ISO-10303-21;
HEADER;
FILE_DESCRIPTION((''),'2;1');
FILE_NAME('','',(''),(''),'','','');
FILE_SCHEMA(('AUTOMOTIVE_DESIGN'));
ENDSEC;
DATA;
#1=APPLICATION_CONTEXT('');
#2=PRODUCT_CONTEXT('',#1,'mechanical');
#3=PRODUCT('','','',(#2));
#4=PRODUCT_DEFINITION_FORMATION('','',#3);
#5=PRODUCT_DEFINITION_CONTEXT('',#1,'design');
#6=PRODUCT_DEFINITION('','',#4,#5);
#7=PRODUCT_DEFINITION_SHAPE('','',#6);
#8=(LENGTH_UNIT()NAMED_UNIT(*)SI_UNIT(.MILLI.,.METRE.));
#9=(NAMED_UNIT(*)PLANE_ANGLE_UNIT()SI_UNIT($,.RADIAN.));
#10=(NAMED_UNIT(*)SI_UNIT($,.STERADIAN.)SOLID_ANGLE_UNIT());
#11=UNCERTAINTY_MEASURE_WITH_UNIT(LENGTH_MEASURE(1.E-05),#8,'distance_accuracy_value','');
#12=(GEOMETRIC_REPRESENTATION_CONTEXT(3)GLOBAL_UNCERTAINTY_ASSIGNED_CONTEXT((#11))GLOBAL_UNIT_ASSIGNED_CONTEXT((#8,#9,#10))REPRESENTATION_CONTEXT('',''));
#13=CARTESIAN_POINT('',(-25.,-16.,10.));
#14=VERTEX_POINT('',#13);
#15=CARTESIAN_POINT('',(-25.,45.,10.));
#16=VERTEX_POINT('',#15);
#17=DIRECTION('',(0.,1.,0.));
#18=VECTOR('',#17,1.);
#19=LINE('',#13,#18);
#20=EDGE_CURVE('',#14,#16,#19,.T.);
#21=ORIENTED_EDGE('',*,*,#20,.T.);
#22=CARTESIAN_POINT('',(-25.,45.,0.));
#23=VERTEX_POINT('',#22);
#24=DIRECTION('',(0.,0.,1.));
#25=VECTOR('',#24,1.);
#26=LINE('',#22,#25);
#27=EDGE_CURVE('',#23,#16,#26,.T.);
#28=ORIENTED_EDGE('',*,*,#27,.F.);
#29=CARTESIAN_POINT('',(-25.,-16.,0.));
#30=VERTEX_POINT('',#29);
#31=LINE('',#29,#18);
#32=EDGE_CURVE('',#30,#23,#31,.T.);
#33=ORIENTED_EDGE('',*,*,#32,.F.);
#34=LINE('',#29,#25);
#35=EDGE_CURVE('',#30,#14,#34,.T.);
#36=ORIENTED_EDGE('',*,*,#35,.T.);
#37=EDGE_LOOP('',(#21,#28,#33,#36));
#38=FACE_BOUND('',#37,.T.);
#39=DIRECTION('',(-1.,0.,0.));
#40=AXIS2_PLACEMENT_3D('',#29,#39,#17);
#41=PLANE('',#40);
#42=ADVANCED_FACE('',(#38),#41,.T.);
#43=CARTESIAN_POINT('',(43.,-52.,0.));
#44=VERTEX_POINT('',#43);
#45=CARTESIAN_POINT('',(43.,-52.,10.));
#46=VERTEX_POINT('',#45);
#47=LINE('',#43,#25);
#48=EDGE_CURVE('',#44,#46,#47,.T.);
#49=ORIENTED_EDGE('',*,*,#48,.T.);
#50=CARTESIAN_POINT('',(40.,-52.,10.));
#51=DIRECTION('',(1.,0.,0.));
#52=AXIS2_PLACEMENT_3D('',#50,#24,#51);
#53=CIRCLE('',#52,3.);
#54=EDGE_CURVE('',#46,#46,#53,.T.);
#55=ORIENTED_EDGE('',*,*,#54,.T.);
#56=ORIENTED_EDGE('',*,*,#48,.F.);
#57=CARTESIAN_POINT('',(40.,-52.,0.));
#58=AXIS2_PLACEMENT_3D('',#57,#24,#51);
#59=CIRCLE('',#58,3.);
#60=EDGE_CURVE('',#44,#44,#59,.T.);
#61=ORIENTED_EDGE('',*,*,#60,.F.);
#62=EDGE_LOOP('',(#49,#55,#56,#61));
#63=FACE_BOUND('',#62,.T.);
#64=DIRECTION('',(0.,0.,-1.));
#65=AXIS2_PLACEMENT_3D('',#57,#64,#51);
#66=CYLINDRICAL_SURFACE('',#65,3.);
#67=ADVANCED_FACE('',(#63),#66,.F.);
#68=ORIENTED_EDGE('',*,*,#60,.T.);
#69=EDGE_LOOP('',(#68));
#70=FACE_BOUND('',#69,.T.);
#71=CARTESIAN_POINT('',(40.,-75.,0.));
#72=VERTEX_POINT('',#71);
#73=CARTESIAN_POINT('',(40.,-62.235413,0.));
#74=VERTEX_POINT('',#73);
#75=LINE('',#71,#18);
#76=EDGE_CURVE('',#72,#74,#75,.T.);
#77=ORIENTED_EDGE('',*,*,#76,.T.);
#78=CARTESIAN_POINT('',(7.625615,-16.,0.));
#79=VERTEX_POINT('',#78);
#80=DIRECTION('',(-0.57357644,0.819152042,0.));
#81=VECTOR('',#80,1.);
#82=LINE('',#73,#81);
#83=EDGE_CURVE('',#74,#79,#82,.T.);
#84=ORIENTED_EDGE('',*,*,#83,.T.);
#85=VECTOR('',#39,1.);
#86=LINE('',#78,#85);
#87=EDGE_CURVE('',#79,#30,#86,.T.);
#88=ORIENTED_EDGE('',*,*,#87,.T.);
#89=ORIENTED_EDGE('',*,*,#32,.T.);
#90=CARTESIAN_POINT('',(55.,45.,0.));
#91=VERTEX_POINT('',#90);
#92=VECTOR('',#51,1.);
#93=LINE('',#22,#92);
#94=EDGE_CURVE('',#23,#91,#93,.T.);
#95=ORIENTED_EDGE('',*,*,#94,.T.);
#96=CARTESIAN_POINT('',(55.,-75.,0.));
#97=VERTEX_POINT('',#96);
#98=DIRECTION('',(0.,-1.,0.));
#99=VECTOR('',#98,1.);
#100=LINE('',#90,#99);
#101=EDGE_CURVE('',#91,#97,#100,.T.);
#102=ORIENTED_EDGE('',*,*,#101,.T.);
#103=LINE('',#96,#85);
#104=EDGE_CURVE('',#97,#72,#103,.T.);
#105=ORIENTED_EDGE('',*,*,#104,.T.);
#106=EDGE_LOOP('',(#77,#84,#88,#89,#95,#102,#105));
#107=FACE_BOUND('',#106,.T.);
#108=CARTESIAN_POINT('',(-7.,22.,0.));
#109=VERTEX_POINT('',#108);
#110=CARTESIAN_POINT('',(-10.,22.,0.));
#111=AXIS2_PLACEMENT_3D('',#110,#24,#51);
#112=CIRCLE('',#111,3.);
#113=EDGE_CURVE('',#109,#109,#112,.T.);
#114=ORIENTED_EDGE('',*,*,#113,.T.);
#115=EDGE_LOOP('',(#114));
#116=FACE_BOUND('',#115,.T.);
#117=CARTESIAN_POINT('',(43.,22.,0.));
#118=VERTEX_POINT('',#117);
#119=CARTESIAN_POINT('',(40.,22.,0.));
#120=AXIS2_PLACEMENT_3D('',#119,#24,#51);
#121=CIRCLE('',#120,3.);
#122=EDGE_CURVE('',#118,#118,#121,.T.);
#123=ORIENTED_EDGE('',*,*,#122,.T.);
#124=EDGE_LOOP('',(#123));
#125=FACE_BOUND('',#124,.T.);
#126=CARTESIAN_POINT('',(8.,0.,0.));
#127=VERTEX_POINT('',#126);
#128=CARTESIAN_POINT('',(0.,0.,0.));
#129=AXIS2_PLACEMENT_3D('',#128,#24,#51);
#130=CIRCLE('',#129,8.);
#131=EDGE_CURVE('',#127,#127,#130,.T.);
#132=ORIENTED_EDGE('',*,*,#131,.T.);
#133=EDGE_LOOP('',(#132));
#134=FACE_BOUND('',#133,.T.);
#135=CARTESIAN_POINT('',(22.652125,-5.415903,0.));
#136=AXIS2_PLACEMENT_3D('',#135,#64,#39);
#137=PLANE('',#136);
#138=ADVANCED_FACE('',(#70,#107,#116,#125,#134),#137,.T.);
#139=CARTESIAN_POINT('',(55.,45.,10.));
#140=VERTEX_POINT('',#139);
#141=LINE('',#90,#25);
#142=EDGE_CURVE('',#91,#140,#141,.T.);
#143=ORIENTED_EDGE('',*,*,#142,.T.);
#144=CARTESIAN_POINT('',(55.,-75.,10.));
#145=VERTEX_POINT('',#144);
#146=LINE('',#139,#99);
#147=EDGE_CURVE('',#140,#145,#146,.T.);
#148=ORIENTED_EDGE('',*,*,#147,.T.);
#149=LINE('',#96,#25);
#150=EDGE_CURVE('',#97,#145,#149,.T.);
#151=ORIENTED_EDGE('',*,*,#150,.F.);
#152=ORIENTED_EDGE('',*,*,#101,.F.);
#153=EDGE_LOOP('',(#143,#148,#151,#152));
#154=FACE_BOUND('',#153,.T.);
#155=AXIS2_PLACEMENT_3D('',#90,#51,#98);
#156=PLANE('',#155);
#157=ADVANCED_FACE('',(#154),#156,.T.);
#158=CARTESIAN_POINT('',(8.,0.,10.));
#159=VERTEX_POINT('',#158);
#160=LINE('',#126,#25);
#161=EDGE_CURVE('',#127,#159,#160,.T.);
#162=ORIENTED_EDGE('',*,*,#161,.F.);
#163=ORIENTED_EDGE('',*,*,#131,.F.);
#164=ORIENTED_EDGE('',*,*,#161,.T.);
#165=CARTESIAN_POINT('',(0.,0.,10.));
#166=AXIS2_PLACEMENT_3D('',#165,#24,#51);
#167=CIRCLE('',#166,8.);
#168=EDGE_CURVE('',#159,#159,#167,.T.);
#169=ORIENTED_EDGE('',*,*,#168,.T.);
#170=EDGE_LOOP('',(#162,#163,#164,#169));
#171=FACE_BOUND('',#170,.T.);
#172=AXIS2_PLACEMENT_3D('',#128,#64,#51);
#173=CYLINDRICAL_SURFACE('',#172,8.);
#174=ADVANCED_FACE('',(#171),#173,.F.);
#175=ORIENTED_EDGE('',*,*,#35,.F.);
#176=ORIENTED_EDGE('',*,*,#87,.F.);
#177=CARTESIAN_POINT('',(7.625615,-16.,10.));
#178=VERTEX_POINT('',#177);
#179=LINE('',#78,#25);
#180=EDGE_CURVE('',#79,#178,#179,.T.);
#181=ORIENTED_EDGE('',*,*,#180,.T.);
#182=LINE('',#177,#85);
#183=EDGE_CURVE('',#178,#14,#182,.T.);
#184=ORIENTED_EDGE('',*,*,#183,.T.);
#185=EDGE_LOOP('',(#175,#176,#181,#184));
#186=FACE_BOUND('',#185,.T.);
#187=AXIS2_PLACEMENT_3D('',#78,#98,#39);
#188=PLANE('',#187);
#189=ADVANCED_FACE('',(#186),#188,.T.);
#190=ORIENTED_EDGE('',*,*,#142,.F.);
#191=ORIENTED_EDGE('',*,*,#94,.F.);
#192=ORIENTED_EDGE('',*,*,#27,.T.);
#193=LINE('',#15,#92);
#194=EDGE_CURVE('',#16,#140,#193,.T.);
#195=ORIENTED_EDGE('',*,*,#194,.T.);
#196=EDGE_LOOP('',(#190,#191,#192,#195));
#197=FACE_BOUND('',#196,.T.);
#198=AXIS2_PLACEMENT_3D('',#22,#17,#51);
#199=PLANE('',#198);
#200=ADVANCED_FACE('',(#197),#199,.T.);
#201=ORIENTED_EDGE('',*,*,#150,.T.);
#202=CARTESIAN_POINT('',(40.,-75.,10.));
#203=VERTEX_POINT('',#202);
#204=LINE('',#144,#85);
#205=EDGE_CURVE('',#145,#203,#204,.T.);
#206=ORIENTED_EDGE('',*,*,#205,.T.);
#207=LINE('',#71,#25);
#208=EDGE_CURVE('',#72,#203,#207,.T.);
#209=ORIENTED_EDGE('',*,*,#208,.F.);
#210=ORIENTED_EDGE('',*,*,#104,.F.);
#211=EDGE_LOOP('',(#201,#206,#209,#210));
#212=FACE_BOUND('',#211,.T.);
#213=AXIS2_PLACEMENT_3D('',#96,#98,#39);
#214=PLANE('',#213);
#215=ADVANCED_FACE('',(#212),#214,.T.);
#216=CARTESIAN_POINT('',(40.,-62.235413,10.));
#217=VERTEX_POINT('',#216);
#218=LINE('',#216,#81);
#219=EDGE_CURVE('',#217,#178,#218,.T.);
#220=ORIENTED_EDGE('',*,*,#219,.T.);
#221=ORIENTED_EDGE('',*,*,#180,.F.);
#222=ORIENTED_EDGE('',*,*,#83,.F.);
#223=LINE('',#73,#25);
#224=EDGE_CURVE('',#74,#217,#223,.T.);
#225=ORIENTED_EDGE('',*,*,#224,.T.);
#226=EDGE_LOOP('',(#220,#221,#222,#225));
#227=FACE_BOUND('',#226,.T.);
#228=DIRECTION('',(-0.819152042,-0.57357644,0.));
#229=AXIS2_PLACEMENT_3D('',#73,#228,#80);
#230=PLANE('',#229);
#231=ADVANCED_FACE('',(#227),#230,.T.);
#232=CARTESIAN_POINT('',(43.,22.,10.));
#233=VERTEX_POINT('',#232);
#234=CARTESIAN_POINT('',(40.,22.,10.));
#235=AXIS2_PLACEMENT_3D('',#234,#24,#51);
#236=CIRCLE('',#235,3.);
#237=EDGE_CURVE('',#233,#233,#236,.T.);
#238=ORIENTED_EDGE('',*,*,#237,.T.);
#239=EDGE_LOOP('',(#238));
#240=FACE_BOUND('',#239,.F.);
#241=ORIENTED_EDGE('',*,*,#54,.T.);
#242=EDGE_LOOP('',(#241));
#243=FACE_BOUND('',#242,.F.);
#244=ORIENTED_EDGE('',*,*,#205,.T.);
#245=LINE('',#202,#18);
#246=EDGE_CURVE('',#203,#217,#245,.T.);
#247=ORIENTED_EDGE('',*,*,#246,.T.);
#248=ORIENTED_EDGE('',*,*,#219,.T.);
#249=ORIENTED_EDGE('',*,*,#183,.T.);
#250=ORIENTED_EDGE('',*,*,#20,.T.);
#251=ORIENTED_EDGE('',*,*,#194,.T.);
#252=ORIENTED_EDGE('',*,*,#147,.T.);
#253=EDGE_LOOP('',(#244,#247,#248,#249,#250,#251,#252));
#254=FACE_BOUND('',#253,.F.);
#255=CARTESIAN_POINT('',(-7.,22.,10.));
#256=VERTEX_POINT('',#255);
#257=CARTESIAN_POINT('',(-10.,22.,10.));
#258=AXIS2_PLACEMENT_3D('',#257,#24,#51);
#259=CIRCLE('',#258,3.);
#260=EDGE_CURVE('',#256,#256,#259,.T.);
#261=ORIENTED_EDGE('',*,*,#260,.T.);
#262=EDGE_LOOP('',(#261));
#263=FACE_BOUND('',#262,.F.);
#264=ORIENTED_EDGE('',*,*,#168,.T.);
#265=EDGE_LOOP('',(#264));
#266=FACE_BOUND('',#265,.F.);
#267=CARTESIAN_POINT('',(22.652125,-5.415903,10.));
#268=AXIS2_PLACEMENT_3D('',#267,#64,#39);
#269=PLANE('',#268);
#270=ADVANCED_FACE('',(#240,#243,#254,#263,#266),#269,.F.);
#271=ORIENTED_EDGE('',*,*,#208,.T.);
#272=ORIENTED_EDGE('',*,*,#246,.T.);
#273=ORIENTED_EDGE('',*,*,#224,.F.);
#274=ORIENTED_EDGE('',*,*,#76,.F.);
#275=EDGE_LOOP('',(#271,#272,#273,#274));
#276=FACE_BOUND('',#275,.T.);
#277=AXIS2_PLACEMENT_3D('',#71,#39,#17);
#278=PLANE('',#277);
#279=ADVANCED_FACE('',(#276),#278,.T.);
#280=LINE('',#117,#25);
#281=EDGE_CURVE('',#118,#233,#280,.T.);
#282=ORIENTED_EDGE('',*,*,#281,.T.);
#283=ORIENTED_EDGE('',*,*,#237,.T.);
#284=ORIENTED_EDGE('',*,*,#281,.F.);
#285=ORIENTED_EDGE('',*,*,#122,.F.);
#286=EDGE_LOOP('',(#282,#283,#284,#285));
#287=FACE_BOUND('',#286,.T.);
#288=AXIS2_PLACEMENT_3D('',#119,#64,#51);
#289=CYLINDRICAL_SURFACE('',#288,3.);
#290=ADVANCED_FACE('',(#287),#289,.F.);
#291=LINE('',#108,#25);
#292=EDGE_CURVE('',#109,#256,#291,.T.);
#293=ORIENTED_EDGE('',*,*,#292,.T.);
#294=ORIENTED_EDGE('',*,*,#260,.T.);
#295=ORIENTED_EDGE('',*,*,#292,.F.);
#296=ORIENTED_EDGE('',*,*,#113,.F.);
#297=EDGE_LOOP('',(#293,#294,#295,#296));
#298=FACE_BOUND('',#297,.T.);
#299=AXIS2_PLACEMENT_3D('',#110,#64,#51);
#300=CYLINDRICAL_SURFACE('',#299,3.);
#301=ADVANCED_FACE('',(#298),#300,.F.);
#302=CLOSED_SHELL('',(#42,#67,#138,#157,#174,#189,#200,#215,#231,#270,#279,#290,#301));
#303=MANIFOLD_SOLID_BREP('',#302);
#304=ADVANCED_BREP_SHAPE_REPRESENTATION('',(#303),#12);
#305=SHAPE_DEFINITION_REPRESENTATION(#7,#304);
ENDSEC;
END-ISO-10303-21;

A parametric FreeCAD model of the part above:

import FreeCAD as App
import Part
import Sketcher

V = App.Vector
Q = App.Units.Quantity


def add_polygon(sketch, points):
    """Adds a closed chain of lines whose ends are joined by coincident constraints."""
    first, n = sketch.GeometryCount, len(points)
    for a, b in zip(points, points[1:] + points[:1]):
        sketch.addGeometry(Part.LineSegment(App.Vector(*a, 0), App.Vector(*b, 0)), False)
    for i in range(n):
        sketch.addConstraint(Sketcher.Constraint("Coincident", first + i, 2, first + (i + 1) % n, 1))

doc = App.newDocument("Part")
body = doc.addObject("PartDesign::Body", "Body")

sketch1 = body.newObject("Sketcher::SketchObject", "Sketch")
sketch1.AttachmentSupport = (doc.getObject("XY_Plane"), [""])
sketch1.MapMode = "FlatFace"
add_polygon(sketch1, [(55, 45), (-25, 45), (-25, -16), (7.6, -16), (40, -62.2), (40, -75), (55, -75)])
sketch1.addGeometry(Part.Circle(V(40, -52, 0), V(0, 0, 1), 3), False)
sketch1.addGeometry(Part.Circle(V(40, 22, 0), V(0, 0, 1), 3), False)
sketch1.addGeometry(Part.Circle(V(0, 0, 0), V(0, 0, 1), 8), False)
sketch1.addGeometry(Part.Circle(V(-10, 22, 0), V(0, 0, 1), 3), False)
sketch1.addConstraint([
    Sketcher.Constraint("Horizontal", 0),
    Sketcher.Constraint("Vertical", 1),
    Sketcher.Constraint("Horizontal", 2),
    Sketcher.Constraint("Vertical", 4),
    Sketcher.Constraint("Horizontal", 5),
    Sketcher.Constraint("Vertical", 6),
    Sketcher.Constraint("Coincident", 9, 3, -1, 1),
    Sketcher.Constraint("Equal", 7, 8),
    Sketcher.Constraint("Equal", 8, 10),
    Sketcher.Constraint("Horizontal", 8, 3, 10, 3),
    Sketcher.Constraint("Vertical", 7, 3, 8, 3),
    Sketcher.Constraint("Vertical", 8, 3, 3, 2),
    Sketcher.Constraint("Diameter", 7, Q("6 mm")),
    Sketcher.Constraint("Diameter", 9, Q("16 mm")),
    Sketcher.Constraint("DistanceX", 0, 2, 0, 1, Q("80 mm")),
    Sketcher.Constraint("DistanceX", 5, 1, 5, 2, Q("15 mm")),
    Sketcher.Constraint("DistanceY", 1, 2, 1, 1, Q("61 mm")),
    Sketcher.Constraint("DistanceY", 6, 1, 6, 2, Q("120 mm")),
    Sketcher.Constraint("Angle", 3, Q("-55 deg")),
    Sketcher.Constraint("DistanceX", -1, 1, 7, 3, Q("40 mm")),
    Sketcher.Constraint("DistanceY", 7, 3, -1, 1, Q("52 mm")),
    Sketcher.Constraint("DistanceY", -1, 1, 8, 3, Q("22 mm")),
    Sketcher.Constraint("DistanceX", 10, 3, -1, 1, Q("10 mm")),
    Sketcher.Constraint("DistanceY", -1, 1, 0, 2, Q("45 mm")),
    Sketcher.Constraint("DistanceX", 2, 1, 2, 2, Q("32.625615 mm")),
])
pad1 = body.newObject("PartDesign::Pad", "Pad")
pad1.Profile = sketch1
pad1.Length = 10

doc.recompute()
